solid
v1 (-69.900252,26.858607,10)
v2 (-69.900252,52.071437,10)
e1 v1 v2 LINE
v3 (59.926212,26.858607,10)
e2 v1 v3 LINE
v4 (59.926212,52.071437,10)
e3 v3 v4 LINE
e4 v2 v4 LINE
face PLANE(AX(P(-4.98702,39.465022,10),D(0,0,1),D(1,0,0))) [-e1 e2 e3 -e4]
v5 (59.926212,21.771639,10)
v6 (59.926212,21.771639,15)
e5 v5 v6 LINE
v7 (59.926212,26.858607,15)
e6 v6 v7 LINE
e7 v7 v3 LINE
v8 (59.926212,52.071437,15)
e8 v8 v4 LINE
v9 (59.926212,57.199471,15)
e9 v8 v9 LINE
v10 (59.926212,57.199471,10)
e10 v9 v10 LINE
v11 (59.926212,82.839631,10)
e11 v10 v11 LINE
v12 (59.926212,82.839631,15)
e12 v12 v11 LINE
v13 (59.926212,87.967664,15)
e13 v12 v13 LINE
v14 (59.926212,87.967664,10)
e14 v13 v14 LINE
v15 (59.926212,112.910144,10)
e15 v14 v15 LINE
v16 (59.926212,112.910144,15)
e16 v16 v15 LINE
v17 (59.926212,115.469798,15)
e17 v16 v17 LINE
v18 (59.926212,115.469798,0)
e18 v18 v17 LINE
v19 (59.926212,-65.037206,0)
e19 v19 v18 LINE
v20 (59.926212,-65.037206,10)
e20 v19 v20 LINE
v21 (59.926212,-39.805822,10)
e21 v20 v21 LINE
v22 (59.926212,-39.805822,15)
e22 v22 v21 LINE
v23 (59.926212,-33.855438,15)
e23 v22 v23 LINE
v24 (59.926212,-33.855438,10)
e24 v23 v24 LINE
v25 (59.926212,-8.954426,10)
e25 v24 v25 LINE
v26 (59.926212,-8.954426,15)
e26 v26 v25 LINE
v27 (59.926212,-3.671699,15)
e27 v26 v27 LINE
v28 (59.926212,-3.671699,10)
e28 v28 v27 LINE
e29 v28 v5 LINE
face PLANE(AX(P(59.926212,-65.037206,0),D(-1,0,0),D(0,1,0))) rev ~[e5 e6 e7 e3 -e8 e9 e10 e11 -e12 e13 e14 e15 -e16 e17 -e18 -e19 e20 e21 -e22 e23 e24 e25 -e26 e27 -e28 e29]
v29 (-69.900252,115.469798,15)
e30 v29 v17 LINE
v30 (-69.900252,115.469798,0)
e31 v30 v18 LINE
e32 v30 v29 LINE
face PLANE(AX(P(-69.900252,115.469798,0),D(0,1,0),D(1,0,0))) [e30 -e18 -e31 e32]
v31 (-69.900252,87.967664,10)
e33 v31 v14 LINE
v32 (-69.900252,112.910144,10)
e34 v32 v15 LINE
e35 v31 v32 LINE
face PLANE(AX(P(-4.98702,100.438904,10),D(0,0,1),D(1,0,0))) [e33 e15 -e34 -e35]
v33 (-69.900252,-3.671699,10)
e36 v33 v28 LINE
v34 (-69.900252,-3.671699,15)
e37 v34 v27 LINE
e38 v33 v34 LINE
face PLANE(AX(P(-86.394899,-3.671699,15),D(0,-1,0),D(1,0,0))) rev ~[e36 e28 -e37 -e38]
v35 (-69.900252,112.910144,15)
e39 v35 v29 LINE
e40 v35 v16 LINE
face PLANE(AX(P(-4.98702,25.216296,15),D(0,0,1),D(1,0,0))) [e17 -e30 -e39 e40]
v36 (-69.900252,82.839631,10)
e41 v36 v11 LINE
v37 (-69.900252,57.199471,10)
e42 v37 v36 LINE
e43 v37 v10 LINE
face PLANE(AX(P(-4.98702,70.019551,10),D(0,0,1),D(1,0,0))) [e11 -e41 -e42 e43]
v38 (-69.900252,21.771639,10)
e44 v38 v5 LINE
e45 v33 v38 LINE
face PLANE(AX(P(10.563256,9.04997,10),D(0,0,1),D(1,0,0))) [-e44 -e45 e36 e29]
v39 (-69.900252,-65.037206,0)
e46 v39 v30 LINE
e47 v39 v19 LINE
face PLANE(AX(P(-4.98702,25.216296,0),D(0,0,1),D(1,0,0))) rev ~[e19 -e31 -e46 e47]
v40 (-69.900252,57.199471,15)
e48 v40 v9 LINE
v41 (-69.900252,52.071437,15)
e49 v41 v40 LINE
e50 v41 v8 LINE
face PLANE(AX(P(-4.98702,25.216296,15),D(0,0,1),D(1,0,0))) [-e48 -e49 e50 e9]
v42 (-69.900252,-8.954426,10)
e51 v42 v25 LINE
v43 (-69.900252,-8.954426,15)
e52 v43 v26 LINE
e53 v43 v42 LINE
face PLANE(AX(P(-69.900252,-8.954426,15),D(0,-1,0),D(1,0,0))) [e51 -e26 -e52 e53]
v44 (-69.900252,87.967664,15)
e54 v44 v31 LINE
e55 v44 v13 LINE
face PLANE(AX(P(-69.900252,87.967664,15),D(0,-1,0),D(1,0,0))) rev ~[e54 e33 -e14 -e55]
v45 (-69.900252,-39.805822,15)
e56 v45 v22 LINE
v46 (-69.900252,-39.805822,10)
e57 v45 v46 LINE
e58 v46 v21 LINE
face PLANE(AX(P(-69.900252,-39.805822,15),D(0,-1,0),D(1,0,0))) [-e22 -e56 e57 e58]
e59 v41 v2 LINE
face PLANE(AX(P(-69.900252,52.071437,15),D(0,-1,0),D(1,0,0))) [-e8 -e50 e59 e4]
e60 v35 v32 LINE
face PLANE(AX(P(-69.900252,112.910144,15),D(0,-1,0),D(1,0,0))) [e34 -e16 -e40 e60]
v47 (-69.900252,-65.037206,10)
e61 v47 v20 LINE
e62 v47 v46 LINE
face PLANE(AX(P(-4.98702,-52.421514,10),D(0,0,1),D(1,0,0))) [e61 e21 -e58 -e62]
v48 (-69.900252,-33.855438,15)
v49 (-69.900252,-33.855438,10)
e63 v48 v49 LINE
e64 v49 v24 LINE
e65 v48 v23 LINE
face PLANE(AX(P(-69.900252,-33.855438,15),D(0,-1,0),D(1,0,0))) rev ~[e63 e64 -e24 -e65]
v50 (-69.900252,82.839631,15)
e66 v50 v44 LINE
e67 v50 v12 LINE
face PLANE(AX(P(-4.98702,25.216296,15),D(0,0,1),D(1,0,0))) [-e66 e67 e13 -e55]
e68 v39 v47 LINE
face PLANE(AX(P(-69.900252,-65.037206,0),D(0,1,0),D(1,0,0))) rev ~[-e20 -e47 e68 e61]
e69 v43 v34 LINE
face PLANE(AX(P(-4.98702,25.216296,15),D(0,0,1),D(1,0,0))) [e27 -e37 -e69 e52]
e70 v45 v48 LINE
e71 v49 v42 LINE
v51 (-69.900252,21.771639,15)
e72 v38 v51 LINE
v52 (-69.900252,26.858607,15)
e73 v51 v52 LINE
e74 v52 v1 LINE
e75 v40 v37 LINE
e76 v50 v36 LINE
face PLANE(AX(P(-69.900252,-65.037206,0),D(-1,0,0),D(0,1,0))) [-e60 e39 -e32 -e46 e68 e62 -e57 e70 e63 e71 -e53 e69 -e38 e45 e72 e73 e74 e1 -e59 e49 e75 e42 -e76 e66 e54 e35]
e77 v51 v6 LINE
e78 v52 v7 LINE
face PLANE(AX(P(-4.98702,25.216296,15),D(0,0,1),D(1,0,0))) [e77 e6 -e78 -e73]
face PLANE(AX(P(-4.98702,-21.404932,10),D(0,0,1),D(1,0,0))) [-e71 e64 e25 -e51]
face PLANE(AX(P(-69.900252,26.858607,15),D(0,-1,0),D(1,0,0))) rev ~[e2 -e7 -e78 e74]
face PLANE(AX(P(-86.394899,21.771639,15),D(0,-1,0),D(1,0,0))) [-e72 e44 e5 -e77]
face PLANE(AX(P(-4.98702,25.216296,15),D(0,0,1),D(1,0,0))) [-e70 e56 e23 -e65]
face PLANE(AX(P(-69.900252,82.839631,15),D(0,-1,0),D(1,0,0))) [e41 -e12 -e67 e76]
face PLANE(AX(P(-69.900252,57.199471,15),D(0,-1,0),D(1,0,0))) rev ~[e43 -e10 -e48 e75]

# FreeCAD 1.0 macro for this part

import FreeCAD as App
import Part
import Sketcher
Q = App.Units.Quantity

doc = App.newDocument("Part")
body = doc.addObject("PartDesign::Body", "Body")

# Sketch on XY plane
sketch1 = body.newObject("Sketcher::SketchObject", "Sketch")
sketch1.AttachmentSupport = (doc.getObject("XY_Plane"), [""])
sketch1.MapMode = "FlatFace"
sketch1.addGeometry(Part.LineSegment(App.Vector(-70, 115, 0), App.Vector(-70, -65, 0)), False)
sketch1.addGeometry(Part.LineSegment(App.Vector(-70, -65, 0), App.Vector(60, -65, 0)), False)
sketch1.addGeometry(Part.LineSegment(App.Vector(60, -65, 0), App.Vector(60, 115, 0)), False)
sketch1.addGeometry(Part.LineSegment(App.Vector(60, 115, 0), App.Vector(-70, 115, 0)), False)
sketch1.addConstraint(Sketcher.Constraint("Coincident", 0, 2, 1, 1))
sketch1.addConstraint(Sketcher.Constraint("Coincident", 1, 2, 2, 1))
sketch1.addConstraint(Sketcher.Constraint("Coincident", 2, 2, 3, 1))
sketch1.addConstraint(Sketcher.Constraint("Coincident", 3, 2, 0, 1))
sketch1.addConstraint(Sketcher.Constraint("Vertical", 0))
sketch1.addConstraint(Sketcher.Constraint("Horizontal", 1))
sketch1.addConstraint(Sketcher.Constraint("Vertical", 2))
sketch1.addConstraint(Sketcher.Constraint("Horizontal", 3))
sketch1.addConstraint(Sketcher.Constraint("DistanceX", 1, 1, 1, 2, Q("129.826464 mm")))
sketch1.addConstraint(Sketcher.Constraint("DistanceY", 0, 2, 0, 1, Q("180.507004 mm")))
sketch1.addConstraint(Sketcher.Constraint("DistanceX", 0, 2, -1, 1, Q("69.900252 mm")))
sketch1.addConstraint(Sketcher.Constraint("DistanceY", 0, 2, -1, 1, Q("65.037206 mm")))
pad1 = body.newObject("PartDesign::Pad", "Pad")
pad1.Profile = sketch1
pad1.Length = 15

# Sketch on XY plane
sketch2 = body.newObject("Sketcher::SketchObject", "Sketch001")
sketch2.AttachmentSupport = (doc.getObject("XY_Plane"), [""])
sketch2.MapMode = "FlatFace"
sketch2.AttachmentOffset = App.Placement(App.Vector(0, 0, 15), App.Rotation())
sketch2.addGeometry(Part.LineSegment(App.Vector(-70, -40, 0), App.Vector(-70, -65, 0)), False)
sketch2.addGeometry(Part.LineSegment(App.Vector(-70, -65, 0), App.Vector(60, -65, 0)), False)
sketch2.addGeometry(Part.LineSegment(App.Vector(60, -65, 0), App.Vector(60, -40, 0)), False)
sketch2.addGeometry(Part.LineSegment(App.Vector(60, -40, 0), App.Vector(-70, -40, 0)), False)
sketch2.addConstraint(Sketcher.Constraint("Coincident", 0, 2, 1, 1))
sketch2.addConstraint(Sketcher.Constraint("Coincident", 1, 2, 2, 1))
sketch2.addConstraint(Sketcher.Constraint("Coincident", 2, 2, 3, 1))
sketch2.addConstraint(Sketcher.Constraint("Coincident", 3, 2, 0, 1))
sketch2.addConstraint(Sketcher.Constraint("Vertical", 0))
sketch2.addConstraint(Sketcher.Constraint("Horizontal", 1))
sketch2.addConstraint(Sketcher.Constraint("Vertical", 2))
sketch2.addConstraint(Sketcher.Constraint("Horizontal", 3))
sketch2.addConstraint(Sketcher.Constraint("DistanceX", 1, 1, 1, 2, Q("129.826464 mm")))
sketch2.addConstraint(Sketcher.Constraint("DistanceY", 0, 2, 0, 1, Q("25.231384 mm")))
sketch2.addConstraint(Sketcher.Constraint("DistanceX", 0, 2, -1, 1, Q("69.900252 mm")))
sketch2.addConstraint(Sketcher.Constraint("DistanceY", 0, 2, -1, 1, Q("65.037206 mm")))
pocket1 = body.newObject("PartDesign::Pocket", "Pocket")
pocket1.Profile = sketch2
pocket1.Length = 5

# Sketch on XY plane
sketch3 = body.newObject("Sketcher::SketchObject", "Sketch002")
sketch3.AttachmentSupport = (doc.getObject("XY_Plane"), [""])
sketch3.MapMode = "FlatFace"
sketch3.AttachmentOffset = App.Placement(App.Vector(0, 0, 15), App.Rotation())
sketch3.addGeometry(Part.LineSegment(App.Vector(-70, -9, 0), App.Vector(-70, -34, 0)), False)
sketch3.addGeometry(Part.LineSegment(App.Vector(-70, -34, 0), App.Vector(60, -34, 0)), False)
sketch3.addGeometry(Part.LineSegment(App.Vector(60, -34, 0), App.Vector(60, -9, 0)), False)
sketch3.addGeometry(Part.LineSegment(App.Vector(60, -9, 0), App.Vector(-70, -9, 0)), False)
sketch3.addConstraint(Sketcher.Constraint("Coincident", 0, 2, 1, 1))
sketch3.addConstraint(Sketcher.Constraint("Coincident", 1, 2, 2, 1))
sketch3.addConstraint(Sketcher.Constraint("Coincident", 2, 2, 3, 1))
sketch3.addConstraint(Sketcher.Constraint("Coincident", 3, 2, 0, 1))
sketch3.addConstraint(Sketcher.Constraint("Vertical", 0))
sketch3.addConstraint(Sketcher.Constraint("Horizontal", 1))
sketch3.addConstraint(Sketcher.Constraint("Vertical", 2))
sketch3.addConstraint(Sketcher.Constraint("Horizontal", 3))
sketch3.addConstraint(Sketcher.Constraint("DistanceX", 1, 1, 1, 2, Q("129.826464 mm")))
sketch3.addConstraint(Sketcher.Constraint("DistanceY", 0, 2, 0, 1, Q("24.901012 mm")))
sketch3.addConstraint(Sketcher.Constraint("DistanceX", 0, 2, -1, 1, Q("69.900252 mm")))
sketch3.addConstraint(Sketcher.Constraint("DistanceY", 0, 2, -1, 1, Q("33.855438 mm")))
pocket2 = body.newObject("PartDesign::Pocket", "Pocket001")
pocket2.Profile = sketch3
pocket2.Length = 5

# Sketch on XY plane
sketch4 = body.newObject("Sketcher::SketchObject", "Sketch003")
sketch4.AttachmentSupport = (doc.getObject("XY_Plane"), [""])
sketch4.MapMode = "FlatFace"
sketch4.AttachmentOffset = App.Placement(App.Vector(0, 0, 15), App.Rotation())
sketch4.addGeometry(Part.LineSegment(App.Vector(-86, 22, 0), App.Vector(-86, -4, 0)), False)
sketch4.addGeometry(Part.LineSegment(App.Vector(-86, -4, 0), App.Vector(108, -4, 0)), False)
sketch4.addGeometry(Part.LineSegment(App.Vector(108, -4, 0), App.Vector(108, 22, 0)), False)
sketch4.addGeometry(Part.LineSegment(App.Vector(108, 22, 0), App.Vector(-86, 22, 0)), False)
sketch4.addConstraint(Sketcher.Constraint("Coincident", 0, 2, 1, 1))
sketch4.addConstraint(Sketcher.Constraint("Coincident", 1, 2, 2, 1))
sketch4.addConstraint(Sketcher.Constraint("Coincident", 2, 2, 3, 1))
sketch4.addConstraint(Sketcher.Constraint("Coincident", 3, 2, 0, 1))
sketch4.addConstraint(Sketcher.Constraint("Vertical", 0))
sketch4.addConstraint(Sketcher.Constraint("Horizontal", 1))
sketch4.addConstraint(Sketcher.Constraint("Vertical", 2))
sketch4.addConstraint(Sketcher.Constraint("Horizontal", 3))
sketch4.addConstraint(Sketcher.Constraint("DistanceX", 1, 1, 1, 2, Q("193.91631 mm")))
sketch4.addConstraint(Sketcher.Constraint("DistanceY", 0, 2, 0, 1, Q("25.443339 mm")))
sketch4.addConstraint(Sketcher.Constraint("DistanceX", 0, 2, -1, 1, Q("86.394899 mm")))
sketch4.addConstraint(Sketcher.Constraint("DistanceY", 0, 2, -1, 1, Q("3.671699 mm")))
pocket3 = body.newObject("PartDesign::Pocket", "Pocket002")
pocket3.Profile = sketch4
pocket3.Length = 5

# Sketch on XY plane
sketch5 = body.newObject("Sketcher::SketchObject", "Sketch004")
sketch5.AttachmentSupport = (doc.getObject("XY_Plane"), [""])
sketch5.MapMode = "FlatFace"
sketch5.AttachmentOffset = App.Placement(App.Vector(0, 0, 15), App.Rotation())
sketch5.addGeometry(Part.LineSegment(App.Vector(-70, 113, 0), App.Vector(-70, 88, 0)), False)
sketch5.addGeometry(Part.LineSegment(App.Vector(-70, 88, 0), App.Vector(60, 88, 0)), False)
sketch5.addGeometry(Part.LineSegment(App.Vector(60, 88, 0), App.Vector(60, 113, 0)), False)
sketch5.addGeometry(Part.LineSegment(App.Vector(60, 113, 0), App.Vector(-70, 113, 0)), False)
sketch5.addGeometry(Part.LineSegment(App.Vector(-70, 83, 0), App.Vector(-70, 57, 0)), False)
sketch5.addGeometry(Part.LineSegment(App.Vector(-70, 57, 0), App.Vector(60, 57, 0)), False)
sketch5.addGeometry(Part.LineSegment(App.Vector(60, 57, 0), App.Vector(60, 83, 0)), False)
sketch5.addGeometry(Part.LineSegment(App.Vector(60, 83, 0), App.Vector(-70, 83, 0)), False)
sketch5.addGeometry(Part.LineSegment(App.Vector(-70, 52, 0), App.Vector(-70, 27, 0)), False)
sketch5.addGeometry(Part.LineSegment(App.Vector(-70, 27, 0), App.Vector(60, 27, 0)), False)
sketch5.addGeometry(Part.LineSegment(App.Vector(60, 27, 0), App.Vector(60, 52, 0)), False)
sketch5.addGeometry(Part.LineSegment(App.Vector(60, 52, 0), App.Vector(-70, 52, 0)), False)
sketch5.addConstraint(Sketcher.Constraint("Coincident", 0, 2, 1, 1))
sketch5.addConstraint(Sketcher.Constraint("Coincident", 1, 2, 2, 1))
sketch5.addConstraint(Sketcher.Constraint("Coincident", 2, 2, 3, 1))
sketch5.addConstraint(Sketcher.Constraint("Coincident", 3, 2, 0, 1))
sketch5.addConstraint(Sketcher.Constraint("Coincident", 4, 2, 5, 1))
sketch5.addConstraint(Sketcher.Constraint("Coincident", 5, 2, 6, 1))
sketch5.addConstraint(Sketcher.Constraint("Coincident", 6, 2, 7, 1))
sketch5.addConstraint(Sketcher.Constraint("Coincident", 7, 2, 4, 1))
sketch5.addConstraint(Sketcher.Constraint("Coincident", 8, 2, 9, 1))
sketch5.addConstraint(Sketcher.Constraint("Coincident", 9, 2, 10, 1))
sketch5.addConstraint(Sketcher.Constraint("Coincident", 10, 2, 11, 1))
sketch5.addConstraint(Sketcher.Constraint("Coincident", 11, 2, 8, 1))
sketch5.addConstraint(Sketcher.Constraint("Vertical", 0))
sketch5.addConstraint(Sketcher.Constraint("Horizontal", 1))
sketch5.addConstraint(Sketcher.Constraint("Vertical", 2))
sketch5.addConstraint(Sketcher.Constraint("Horizontal", 3))
sketch5.addConstraint(Sketcher.Constraint("Vertical", 4))
sketch5.addConstraint(Sketcher.Constraint("Horizontal", 5))
sketch5.addConstraint(Sketcher.Constraint("Vertical", 6))
sketch5.addConstraint(Sketcher.Constraint("Horizontal", 7))
sketch5.addConstraint(Sketcher.Constraint("Vertical", 8))
sketch5.addConstraint(Sketcher.Constraint("Horizontal", 9))
sketch5.addConstraint(Sketcher.Constraint("Vertical", 10))
sketch5.addConstraint(Sketcher.Constraint("Horizontal", 11))
sketch5.addConstraint(Sketcher.Constraint("Vertical", 3, 2, 4, 2))
sketch5.addConstraint(Sketcher.Constraint("Vertical", 2, 2, 5, 2))
sketch5.addConstraint(Sketcher.Constraint("Vertical", 7, 2, 8, 2))
sketch5.addConstraint(Sketcher.Constraint("Vertical", 6, 2, 9, 2))
sketch5.addConstraint(Sketcher.Constraint("DistanceY", 0, 2, 0, 1, Q("24.94248 mm")))
sketch5.addConstraint(Sketcher.Constraint("DistanceY", 4, 2, 4, 1, Q("25.64016 mm")))
sketch5.addConstraint(Sketcher.Constraint("DistanceY", 8, 2, 8, 1, Q("25.21283 mm")))
sketch5.addConstraint(Sketcher.Constraint("DistanceX", 1, 1, 1, 2, Q("129.826464 mm")))
sketch5.addConstraint(Sketcher.Constraint("DistanceX", 0, 2, -1, 1, Q("69.900252 mm")))
sketch5.addConstraint(Sketcher.Constraint("DistanceY", -1, 1, 4, 2, Q("57.199471 mm")))
sketch5.addConstraint(Sketcher.Constraint("DistanceY", -1, 1, 0, 2, Q("87.967664 mm")))
sketch5.addConstraint(Sketcher.Constraint("DistanceY", -1, 1, 8, 2, Q("26.858607 mm")))
pocket4 = body.newObject("PartDesign::Pocket", "Pocket003")
pocket4.Profile = sketch5
pocket4.Length = 5

doc.recompute()
